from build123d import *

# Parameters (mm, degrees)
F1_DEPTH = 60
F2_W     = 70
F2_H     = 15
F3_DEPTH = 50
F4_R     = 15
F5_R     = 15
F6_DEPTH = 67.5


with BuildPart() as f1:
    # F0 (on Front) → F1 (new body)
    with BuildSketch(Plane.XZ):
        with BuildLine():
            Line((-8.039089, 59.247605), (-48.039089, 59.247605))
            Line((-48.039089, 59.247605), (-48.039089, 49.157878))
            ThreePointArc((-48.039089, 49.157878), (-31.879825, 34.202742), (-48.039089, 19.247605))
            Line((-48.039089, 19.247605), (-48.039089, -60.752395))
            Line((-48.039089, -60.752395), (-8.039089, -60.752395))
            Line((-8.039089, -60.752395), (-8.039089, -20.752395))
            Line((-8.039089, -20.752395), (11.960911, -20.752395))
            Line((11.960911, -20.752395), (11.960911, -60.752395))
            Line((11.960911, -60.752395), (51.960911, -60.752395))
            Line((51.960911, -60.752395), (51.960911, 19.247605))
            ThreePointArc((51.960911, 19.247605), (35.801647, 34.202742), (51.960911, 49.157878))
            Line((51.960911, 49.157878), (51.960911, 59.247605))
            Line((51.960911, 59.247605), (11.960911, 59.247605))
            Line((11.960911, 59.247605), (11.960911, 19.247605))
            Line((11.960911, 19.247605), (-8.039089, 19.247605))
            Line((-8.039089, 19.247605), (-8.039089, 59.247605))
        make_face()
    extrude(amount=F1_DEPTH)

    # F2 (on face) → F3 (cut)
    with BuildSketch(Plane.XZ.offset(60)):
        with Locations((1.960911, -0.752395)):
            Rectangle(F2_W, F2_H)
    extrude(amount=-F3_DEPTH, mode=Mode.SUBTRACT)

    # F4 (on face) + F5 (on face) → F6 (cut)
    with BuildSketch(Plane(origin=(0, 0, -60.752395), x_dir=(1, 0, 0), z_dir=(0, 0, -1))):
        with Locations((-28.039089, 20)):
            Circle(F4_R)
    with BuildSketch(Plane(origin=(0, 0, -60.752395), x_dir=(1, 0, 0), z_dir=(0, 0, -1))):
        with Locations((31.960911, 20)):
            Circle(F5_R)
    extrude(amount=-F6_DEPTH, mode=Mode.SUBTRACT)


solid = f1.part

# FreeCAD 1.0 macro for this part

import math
import FreeCAD as App
import Part
import Sketcher

V = App.Vector
Q = App.Units.Quantity

doc = App.newDocument("Part")
body = doc.addObject("PartDesign::Body", "Body")

# Sketch on XZ plane
sketch1 = body.newObject("Sketcher::SketchObject", "Sketch")
sketch1.AttachmentSupport = (doc.getObject("XZ_Plane"), [""])
sketch1.MapMode = "FlatFace"
sketch1.addGeometry([
    Part.LineSegment(V(-8.039089, 59.247605, 0), V(-48.039089, 59.247605, 0)),  # 0
    Part.LineSegment(V(-48.039089, 59.247605, 0), V(-48.039089, 49.157878, 0)),  # 1
    Part.ArcOfCircle(Part.Circle(V(-46.879825, 34.202742, 0), V(0, 0, 1), 15), math.radians(-94.432482), math.radians(94.432482)),  # 2
    Part.LineSegment(V(-48.039089, 19.247605, 0), V(-48.039089, -60.752395, 0)),  # 3
    Part.LineSegment(V(-48.039089, -60.752395, 0), V(-8.039089, -60.752395, 0)),  # 4
    Part.LineSegment(V(-8.039089, -60.752395, 0), V(-8.039089, -20.752395, 0)),  # 5
    Part.LineSegment(V(-8.039089, -20.752395, 0), V(11.960911, -20.752395, 0)),  # 6
    Part.LineSegment(V(11.960911, -20.752395, 0), V(11.960911, -60.752395, 0)),  # 7
    Part.LineSegment(V(11.960911, -60.752395, 0), V(51.960911, -60.752395, 0)),  # 8
    Part.LineSegment(V(51.960911, -60.752395, 0), V(51.960911, 19.247605, 0)),  # 9
    Part.ArcOfCircle(Part.Circle(V(50.801647, 34.202742, 0), V(0, 0, 1), 15), math.radians(85.567518), math.radians(274.432482)),  # 10
    Part.LineSegment(V(51.960911, 49.157878, 0), V(51.960911, 59.247605, 0)),  # 11
    Part.LineSegment(V(51.960911, 59.247605, 0), V(11.960911, 59.247605, 0)),  # 12
    Part.LineSegment(V(11.960911, 59.247605, 0), V(11.960911, 19.247605, 0)),  # 13
    Part.LineSegment(V(11.960911, 19.247605, 0), V(-8.039089, 19.247605, 0)),  # 14
    Part.LineSegment(V(-8.039089, 19.247605, 0), V(-8.039089, 59.247605, 0)),  # 15
], False)
sketch1.addConstraint([
    Sketcher.Constraint("Coincident", 0, 2, 1, 1),
    Sketcher.Constraint("Coincident", 1, 2, 2, 2),
    Sketcher.Constraint("Coincident", 2, 1, 3, 1),
    Sketcher.Constraint("Coincident", 3, 2, 4, 1),
    Sketcher.Constraint("Coincident", 4, 2, 5, 1),
    Sketcher.Constraint("Coincident", 5, 2, 6, 1),
    Sketcher.Constraint("Coincident", 6, 2, 7, 1),
    Sketcher.Constraint("Coincident", 7, 2, 8, 1),
    Sketcher.Constraint("Coincident", 8, 2, 9, 1),
    Sketcher.Constraint("Coincident", 9, 2, 10, 2),
    Sketcher.Constraint("Coincident", 10, 1, 11, 1),
    Sketcher.Constraint("Coincident", 11, 2, 12, 1),
    Sketcher.Constraint("Coincident", 12, 2, 13, 1),
    Sketcher.Constraint("Coincident", 13, 2, 14, 1),
    Sketcher.Constraint("Coincident", 14, 2, 15, 1),
    Sketcher.Constraint("Coincident", 15, 2, 0, 1),
    Sketcher.Constraint("Horizontal", 0),
    Sketcher.Constraint("Vertical", 1),
    Sketcher.Constraint("Vertical", 3),
    Sketcher.Constraint("Horizontal", 4),
    Sketcher.Constraint("Vertical", 5),
    Sketcher.Constraint("Horizontal", 6),
    Sketcher.Constraint("Vertical", 7),
    Sketcher.Constraint("Horizontal", 8),
    Sketcher.Constraint("Vertical", 9),
    Sketcher.Constraint("Vertical", 11),
    Sketcher.Constraint("Horizontal", 12),
    Sketcher.Constraint("Vertical", 13),
    Sketcher.Constraint("Horizontal", 14),
    Sketcher.Constraint("Vertical", 15),
    Sketcher.Constraint("Equal", 2, 10),
    Sketcher.Constraint("Horizontal", 2, 3, 10, 3),
    Sketcher.Constraint("Horizontal", 4, 2, 7, 2),
    Sketcher.Constraint("Horizontal", 2, 1, 9, 2),
    Sketcher.Constraint("Horizontal", 1, 2, 10, 1),
    Sketcher.Constraint("Horizontal", 0, 2, 11, 2),
    Sketcher.Constraint("Horizontal", 9, 2, 13, 2),
    Sketcher.Constraint("Vertical", 1, 2, 2, 1),
    Sketcher.Constraint("Vertical", 7, 2, 12, 2),
    Sketcher.Constraint("Vertical", 5, 2, 14, 2),
    Sketcher.Constraint("Equal", 4, 8),
    Sketcher.Constraint("Equal", 12, 5),
    Sketcher.Constraint("Equal", 7, 13),
    Sketcher.Constraint("Radius", 2, Q("15 mm")),
    Sketcher.Constraint("DistanceX", 0, 2, 0, 1, Q("40 mm")),
    Sketcher.Constraint("DistanceX", 6, 1, 6, 2, Q("20 mm")),
    Sketcher.Constraint("DistanceY", 3, 2, 3, 1, Q("80 mm")),
    Sketcher.Constraint("DistanceY", 1, 2, 1, 1, Q("10.089727 mm")),
    Sketcher.Constraint("DistanceY", -1, 1, 2, 3, Q("34.202742 mm")),
    Sketcher.Constraint("DistanceX", 0, 2, -1, 1, Q("48.039089 mm")),
])
pad1 = body.newObject("PartDesign::Pad", "Pad")
pad1.Profile = sketch1
pad1.Length = 60

# Sketch on XZ plane
sketch2 = body.newObject("Sketcher::SketchObject", "Sketch001")
sketch2.AttachmentSupport = (doc.getObject("XZ_Plane"), [""])
sketch2.MapMode = "FlatFace"
sketch2.AttachmentOffset = App.Placement(V(0, 0, 60), App.Rotation())
sketch2.addGeometry([
    Part.LineSegment(V(-33.039089, 6.747605, 0), V(-33.039089, -8.252395, 0)),
    Part.LineSegment(V(-33.039089, -8.252395, 0), V(36.960911, -8.252395, 0)),
    Part.LineSegment(V(36.960911, -8.252395, 0), V(36.960911, 6.747605, 0)),
    Part.LineSegment(V(36.960911, 6.747605, 0), V(-33.039089, 6.747605, 0)),
], False)
sketch2.addConstraint([
    Sketcher.Constraint("Coincident", 0, 2, 1, 1),
    Sketcher.Constraint("Coincident", 1, 2, 2, 1),
    Sketcher.Constraint("Coincident", 2, 2, 3, 1),
    Sketcher.Constraint("Coincident", 3, 2, 0, 1),
    Sketcher.Constraint("Vertical", 0),
    Sketcher.Constraint("Horizontal", 1),
    Sketcher.Constraint("Vertical", 2),
    Sketcher.Constraint("Horizontal", 3),
    Sketcher.Constraint("DistanceX", 1, 1, 1, 2, Q("70 mm")),
    Sketcher.Constraint("DistanceY", 0, 2, 0, 1, Q("15 mm")),
    Sketcher.Constraint("DistanceX", 0, 2, -1, 1, Q("33.039089 mm")),
    Sketcher.Constraint("DistanceY", 0, 2, -1, 1, Q("8.252395 mm")),
])
pocket1 = body.newObject("PartDesign::Pocket", "Pocket")
pocket1.Profile = sketch2
pocket1.Length = 50

# Sketch on XY plane
sketch3 = body.newObject("Sketcher::SketchObject", "Sketch002")
sketch3.AttachmentSupport = (doc.getObject("XY_Plane"), [""])
sketch3.MapMode = "FlatFace"
sketch3.AttachmentOffset = App.Placement(V(0, 0, -60.752395), App.Rotation())
sketch3.addGeometry([
    Part.Circle(V(-28.039089, -20, 0), V(0, 0, 1), 15),
    Part.Circle(V(31.960911, -20, 0), V(0, 0, 1), 15),
], False)
sketch3.addConstraint([
    Sketcher.Constraint("Equal", 0, 1),
    Sketcher.Constraint("Horizontal", 0, 3, 1, 3),
    Sketcher.Constraint("Diameter", 0, Q("30 mm")),
    Sketcher.Constraint("DistanceY", 0, 3, -1, 1, Q("20 mm")),
    Sketcher.Constraint("DistanceX", 0, 3, 1, 3, Q("60 mm")),
    Sketcher.Constraint("DistanceX", 0, 3, -1, 1, Q("28.039089 mm")),
])
pocket2 = body.newObject("PartDesign::Pocket", "Pocket001")
pocket2.Profile = sketch3
pocket2.Length = 67.5
pocket2.Reversed = True

doc.recompute()
